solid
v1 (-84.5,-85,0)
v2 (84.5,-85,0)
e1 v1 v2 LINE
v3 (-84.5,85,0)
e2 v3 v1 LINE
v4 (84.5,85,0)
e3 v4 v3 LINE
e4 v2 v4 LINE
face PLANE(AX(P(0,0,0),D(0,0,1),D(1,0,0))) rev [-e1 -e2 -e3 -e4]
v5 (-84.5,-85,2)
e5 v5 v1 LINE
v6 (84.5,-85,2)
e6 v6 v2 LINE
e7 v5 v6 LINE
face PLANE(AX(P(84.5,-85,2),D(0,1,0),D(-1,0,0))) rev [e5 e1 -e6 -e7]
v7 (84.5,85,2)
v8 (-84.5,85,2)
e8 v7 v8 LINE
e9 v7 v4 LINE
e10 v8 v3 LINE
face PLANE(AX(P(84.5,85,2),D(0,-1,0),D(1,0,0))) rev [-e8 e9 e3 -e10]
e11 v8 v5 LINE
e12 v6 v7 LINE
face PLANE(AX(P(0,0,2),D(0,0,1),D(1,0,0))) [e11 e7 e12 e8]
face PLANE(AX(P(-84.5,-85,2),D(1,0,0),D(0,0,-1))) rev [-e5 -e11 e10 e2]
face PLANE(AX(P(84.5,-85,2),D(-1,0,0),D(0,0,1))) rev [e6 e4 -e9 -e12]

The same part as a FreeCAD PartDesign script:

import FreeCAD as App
import Part
import Sketcher

doc = App.newDocument("Part")
body = doc.addObject("PartDesign::Body", "Body")

sketch1 = doc.addObject("Sketcher::SketchObject", "Sketch")
body.addObject(sketch1)
sketch1.AttachmentSupport = (doc.XY_Plane, [""])
sketch1.MapMode = "FlatFace"
sketch1.addGeometry([
    Part.LineSegment(App.Vector(-84, 85, 0), App.Vector(-84, -85, 0)),
    Part.LineSegment(App.Vector(-84, -85, 0), App.Vector(84, -85, 0)),
    Part.LineSegment(App.Vector(84, -85, 0), App.Vector(84, 85, 0)),
    Part.LineSegment(App.Vector(84, 85, 0), App.Vector(-84, 85, 0)),
], False)
sketch1.addConstraint([
    Sketcher.Constraint("Coincident", 0, 2, 1, 1),
    Sketcher.Constraint("Coincident", 1, 2, 2, 1),
    Sketcher.Constraint("Coincident", 2, 2, 3, 1),
    Sketcher.Constraint("Coincident", 3, 2, 0, 1),
    Sketcher.Constraint("Vertical", 0),
    Sketcher.Constraint("Horizontal", 1),
    Sketcher.Constraint("Vertical", 2),
    Sketcher.Constraint("Horizontal", 3),
    Sketcher.Constraint("Symmetric", 0, 2, 2, 2, -1, 1),
    Sketcher.Constraint("DistanceX", 1, 1, 1, 2, 169.0),
    Sketcher.Constraint("DistanceY", 0, 2, 0, 1, 170.0),
])
pad1 = doc.addObject("PartDesign::Pad", "Pad")
body.addObject(pad1)
pad1.Profile = sketch1
pad1.Length = 2

doc.recompute()
